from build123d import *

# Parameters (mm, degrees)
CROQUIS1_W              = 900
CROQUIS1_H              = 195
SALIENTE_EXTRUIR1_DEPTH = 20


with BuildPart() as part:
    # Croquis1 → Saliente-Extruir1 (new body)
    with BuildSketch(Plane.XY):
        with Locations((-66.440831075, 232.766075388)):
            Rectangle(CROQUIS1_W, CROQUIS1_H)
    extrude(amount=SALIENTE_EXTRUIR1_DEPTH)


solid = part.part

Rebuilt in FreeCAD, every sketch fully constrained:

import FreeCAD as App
import Part
import Sketcher

V = App.Vector
Q = App.Units.Quantity

doc = App.newDocument("Part")
params = doc.addObject("Spreadsheet::Sheet", "Params")
for row, (alias, value) in enumerate([
    ("sketch1_width", "900 mm"),
    ("sketch1_height", "195 mm"),
    ("pad1_length", "20 mm"),
], start=1):
    params.set(f"A{row}", alias)
    params.set(f"B{row}", "=" + value)
    params.setAlias(f"B{row}", alias)

body = doc.addObject("PartDesign::Body", "Body")

# Sketch on XY plane
sketch1 = body.newObject("Sketcher::SketchObject", "Sketch")
sketch1.AttachmentSupport = (doc.getObject("XY_Plane"), [""])
sketch1.MapMode = "FlatFace"
sketch1.addGeometry(Part.LineSegment(V(-516.440831, 330.266075, 0), V(-516.440831, 135.266075, 0)), False)
sketch1.addGeometry(Part.LineSegment(V(-516.440831, 135.266075, 0), V(383.559169, 135.266075, 0)), False)
sketch1.addGeometry(Part.LineSegment(V(383.559169, 135.266075, 0), V(383.559169, 330.266075, 0)), False)
sketch1.addGeometry(Part.LineSegment(V(383.559169, 330.266075, 0), V(-516.440831, 330.266075, 0)), False)
sketch1.addConstraint(Sketcher.Constraint("Coincident", 0, 2, 1, 1))
sketch1.addConstraint(Sketcher.Constraint("Coincident", 1, 2, 2, 1))
sketch1.addConstraint(Sketcher.Constraint("Coincident", 2, 2, 3, 1))
sketch1.addConstraint(Sketcher.Constraint("Coincident", 3, 2, 0, 1))
sketch1.addConstraint(Sketcher.Constraint("Vertical", 0))
sketch1.addConstraint(Sketcher.Constraint("Horizontal", 1))
sketch1.addConstraint(Sketcher.Constraint("Vertical", 2))
sketch1.addConstraint(Sketcher.Constraint("Horizontal", 3))
sketch1.addConstraint(Sketcher.Constraint("DistanceX", 1, 1, 1, 2, Q("900 mm")))
sketch1.addConstraint(Sketcher.Constraint("DistanceY", 0, 2, 0, 1, Q("195 mm")))
sketch1.addConstraint(Sketcher.Constraint("DistanceX", 0, 2, -1, 1, Q("516.440831 mm")))
sketch1.addConstraint(Sketcher.Constraint("DistanceY", -1, 1, 0, 2, Q("135.266075 mm")))
sketch1.setExpression("Constraints[8]", "Params.sketch1_width")
sketch1.setExpression("Constraints[9]", "Params.sketch1_height")
pad1 = body.newObject("PartDesign::Pad", "Pad")
pad1.Profile = sketch1
pad1.setExpression("Length", "Params.pad1_length")

doc.recompute()
